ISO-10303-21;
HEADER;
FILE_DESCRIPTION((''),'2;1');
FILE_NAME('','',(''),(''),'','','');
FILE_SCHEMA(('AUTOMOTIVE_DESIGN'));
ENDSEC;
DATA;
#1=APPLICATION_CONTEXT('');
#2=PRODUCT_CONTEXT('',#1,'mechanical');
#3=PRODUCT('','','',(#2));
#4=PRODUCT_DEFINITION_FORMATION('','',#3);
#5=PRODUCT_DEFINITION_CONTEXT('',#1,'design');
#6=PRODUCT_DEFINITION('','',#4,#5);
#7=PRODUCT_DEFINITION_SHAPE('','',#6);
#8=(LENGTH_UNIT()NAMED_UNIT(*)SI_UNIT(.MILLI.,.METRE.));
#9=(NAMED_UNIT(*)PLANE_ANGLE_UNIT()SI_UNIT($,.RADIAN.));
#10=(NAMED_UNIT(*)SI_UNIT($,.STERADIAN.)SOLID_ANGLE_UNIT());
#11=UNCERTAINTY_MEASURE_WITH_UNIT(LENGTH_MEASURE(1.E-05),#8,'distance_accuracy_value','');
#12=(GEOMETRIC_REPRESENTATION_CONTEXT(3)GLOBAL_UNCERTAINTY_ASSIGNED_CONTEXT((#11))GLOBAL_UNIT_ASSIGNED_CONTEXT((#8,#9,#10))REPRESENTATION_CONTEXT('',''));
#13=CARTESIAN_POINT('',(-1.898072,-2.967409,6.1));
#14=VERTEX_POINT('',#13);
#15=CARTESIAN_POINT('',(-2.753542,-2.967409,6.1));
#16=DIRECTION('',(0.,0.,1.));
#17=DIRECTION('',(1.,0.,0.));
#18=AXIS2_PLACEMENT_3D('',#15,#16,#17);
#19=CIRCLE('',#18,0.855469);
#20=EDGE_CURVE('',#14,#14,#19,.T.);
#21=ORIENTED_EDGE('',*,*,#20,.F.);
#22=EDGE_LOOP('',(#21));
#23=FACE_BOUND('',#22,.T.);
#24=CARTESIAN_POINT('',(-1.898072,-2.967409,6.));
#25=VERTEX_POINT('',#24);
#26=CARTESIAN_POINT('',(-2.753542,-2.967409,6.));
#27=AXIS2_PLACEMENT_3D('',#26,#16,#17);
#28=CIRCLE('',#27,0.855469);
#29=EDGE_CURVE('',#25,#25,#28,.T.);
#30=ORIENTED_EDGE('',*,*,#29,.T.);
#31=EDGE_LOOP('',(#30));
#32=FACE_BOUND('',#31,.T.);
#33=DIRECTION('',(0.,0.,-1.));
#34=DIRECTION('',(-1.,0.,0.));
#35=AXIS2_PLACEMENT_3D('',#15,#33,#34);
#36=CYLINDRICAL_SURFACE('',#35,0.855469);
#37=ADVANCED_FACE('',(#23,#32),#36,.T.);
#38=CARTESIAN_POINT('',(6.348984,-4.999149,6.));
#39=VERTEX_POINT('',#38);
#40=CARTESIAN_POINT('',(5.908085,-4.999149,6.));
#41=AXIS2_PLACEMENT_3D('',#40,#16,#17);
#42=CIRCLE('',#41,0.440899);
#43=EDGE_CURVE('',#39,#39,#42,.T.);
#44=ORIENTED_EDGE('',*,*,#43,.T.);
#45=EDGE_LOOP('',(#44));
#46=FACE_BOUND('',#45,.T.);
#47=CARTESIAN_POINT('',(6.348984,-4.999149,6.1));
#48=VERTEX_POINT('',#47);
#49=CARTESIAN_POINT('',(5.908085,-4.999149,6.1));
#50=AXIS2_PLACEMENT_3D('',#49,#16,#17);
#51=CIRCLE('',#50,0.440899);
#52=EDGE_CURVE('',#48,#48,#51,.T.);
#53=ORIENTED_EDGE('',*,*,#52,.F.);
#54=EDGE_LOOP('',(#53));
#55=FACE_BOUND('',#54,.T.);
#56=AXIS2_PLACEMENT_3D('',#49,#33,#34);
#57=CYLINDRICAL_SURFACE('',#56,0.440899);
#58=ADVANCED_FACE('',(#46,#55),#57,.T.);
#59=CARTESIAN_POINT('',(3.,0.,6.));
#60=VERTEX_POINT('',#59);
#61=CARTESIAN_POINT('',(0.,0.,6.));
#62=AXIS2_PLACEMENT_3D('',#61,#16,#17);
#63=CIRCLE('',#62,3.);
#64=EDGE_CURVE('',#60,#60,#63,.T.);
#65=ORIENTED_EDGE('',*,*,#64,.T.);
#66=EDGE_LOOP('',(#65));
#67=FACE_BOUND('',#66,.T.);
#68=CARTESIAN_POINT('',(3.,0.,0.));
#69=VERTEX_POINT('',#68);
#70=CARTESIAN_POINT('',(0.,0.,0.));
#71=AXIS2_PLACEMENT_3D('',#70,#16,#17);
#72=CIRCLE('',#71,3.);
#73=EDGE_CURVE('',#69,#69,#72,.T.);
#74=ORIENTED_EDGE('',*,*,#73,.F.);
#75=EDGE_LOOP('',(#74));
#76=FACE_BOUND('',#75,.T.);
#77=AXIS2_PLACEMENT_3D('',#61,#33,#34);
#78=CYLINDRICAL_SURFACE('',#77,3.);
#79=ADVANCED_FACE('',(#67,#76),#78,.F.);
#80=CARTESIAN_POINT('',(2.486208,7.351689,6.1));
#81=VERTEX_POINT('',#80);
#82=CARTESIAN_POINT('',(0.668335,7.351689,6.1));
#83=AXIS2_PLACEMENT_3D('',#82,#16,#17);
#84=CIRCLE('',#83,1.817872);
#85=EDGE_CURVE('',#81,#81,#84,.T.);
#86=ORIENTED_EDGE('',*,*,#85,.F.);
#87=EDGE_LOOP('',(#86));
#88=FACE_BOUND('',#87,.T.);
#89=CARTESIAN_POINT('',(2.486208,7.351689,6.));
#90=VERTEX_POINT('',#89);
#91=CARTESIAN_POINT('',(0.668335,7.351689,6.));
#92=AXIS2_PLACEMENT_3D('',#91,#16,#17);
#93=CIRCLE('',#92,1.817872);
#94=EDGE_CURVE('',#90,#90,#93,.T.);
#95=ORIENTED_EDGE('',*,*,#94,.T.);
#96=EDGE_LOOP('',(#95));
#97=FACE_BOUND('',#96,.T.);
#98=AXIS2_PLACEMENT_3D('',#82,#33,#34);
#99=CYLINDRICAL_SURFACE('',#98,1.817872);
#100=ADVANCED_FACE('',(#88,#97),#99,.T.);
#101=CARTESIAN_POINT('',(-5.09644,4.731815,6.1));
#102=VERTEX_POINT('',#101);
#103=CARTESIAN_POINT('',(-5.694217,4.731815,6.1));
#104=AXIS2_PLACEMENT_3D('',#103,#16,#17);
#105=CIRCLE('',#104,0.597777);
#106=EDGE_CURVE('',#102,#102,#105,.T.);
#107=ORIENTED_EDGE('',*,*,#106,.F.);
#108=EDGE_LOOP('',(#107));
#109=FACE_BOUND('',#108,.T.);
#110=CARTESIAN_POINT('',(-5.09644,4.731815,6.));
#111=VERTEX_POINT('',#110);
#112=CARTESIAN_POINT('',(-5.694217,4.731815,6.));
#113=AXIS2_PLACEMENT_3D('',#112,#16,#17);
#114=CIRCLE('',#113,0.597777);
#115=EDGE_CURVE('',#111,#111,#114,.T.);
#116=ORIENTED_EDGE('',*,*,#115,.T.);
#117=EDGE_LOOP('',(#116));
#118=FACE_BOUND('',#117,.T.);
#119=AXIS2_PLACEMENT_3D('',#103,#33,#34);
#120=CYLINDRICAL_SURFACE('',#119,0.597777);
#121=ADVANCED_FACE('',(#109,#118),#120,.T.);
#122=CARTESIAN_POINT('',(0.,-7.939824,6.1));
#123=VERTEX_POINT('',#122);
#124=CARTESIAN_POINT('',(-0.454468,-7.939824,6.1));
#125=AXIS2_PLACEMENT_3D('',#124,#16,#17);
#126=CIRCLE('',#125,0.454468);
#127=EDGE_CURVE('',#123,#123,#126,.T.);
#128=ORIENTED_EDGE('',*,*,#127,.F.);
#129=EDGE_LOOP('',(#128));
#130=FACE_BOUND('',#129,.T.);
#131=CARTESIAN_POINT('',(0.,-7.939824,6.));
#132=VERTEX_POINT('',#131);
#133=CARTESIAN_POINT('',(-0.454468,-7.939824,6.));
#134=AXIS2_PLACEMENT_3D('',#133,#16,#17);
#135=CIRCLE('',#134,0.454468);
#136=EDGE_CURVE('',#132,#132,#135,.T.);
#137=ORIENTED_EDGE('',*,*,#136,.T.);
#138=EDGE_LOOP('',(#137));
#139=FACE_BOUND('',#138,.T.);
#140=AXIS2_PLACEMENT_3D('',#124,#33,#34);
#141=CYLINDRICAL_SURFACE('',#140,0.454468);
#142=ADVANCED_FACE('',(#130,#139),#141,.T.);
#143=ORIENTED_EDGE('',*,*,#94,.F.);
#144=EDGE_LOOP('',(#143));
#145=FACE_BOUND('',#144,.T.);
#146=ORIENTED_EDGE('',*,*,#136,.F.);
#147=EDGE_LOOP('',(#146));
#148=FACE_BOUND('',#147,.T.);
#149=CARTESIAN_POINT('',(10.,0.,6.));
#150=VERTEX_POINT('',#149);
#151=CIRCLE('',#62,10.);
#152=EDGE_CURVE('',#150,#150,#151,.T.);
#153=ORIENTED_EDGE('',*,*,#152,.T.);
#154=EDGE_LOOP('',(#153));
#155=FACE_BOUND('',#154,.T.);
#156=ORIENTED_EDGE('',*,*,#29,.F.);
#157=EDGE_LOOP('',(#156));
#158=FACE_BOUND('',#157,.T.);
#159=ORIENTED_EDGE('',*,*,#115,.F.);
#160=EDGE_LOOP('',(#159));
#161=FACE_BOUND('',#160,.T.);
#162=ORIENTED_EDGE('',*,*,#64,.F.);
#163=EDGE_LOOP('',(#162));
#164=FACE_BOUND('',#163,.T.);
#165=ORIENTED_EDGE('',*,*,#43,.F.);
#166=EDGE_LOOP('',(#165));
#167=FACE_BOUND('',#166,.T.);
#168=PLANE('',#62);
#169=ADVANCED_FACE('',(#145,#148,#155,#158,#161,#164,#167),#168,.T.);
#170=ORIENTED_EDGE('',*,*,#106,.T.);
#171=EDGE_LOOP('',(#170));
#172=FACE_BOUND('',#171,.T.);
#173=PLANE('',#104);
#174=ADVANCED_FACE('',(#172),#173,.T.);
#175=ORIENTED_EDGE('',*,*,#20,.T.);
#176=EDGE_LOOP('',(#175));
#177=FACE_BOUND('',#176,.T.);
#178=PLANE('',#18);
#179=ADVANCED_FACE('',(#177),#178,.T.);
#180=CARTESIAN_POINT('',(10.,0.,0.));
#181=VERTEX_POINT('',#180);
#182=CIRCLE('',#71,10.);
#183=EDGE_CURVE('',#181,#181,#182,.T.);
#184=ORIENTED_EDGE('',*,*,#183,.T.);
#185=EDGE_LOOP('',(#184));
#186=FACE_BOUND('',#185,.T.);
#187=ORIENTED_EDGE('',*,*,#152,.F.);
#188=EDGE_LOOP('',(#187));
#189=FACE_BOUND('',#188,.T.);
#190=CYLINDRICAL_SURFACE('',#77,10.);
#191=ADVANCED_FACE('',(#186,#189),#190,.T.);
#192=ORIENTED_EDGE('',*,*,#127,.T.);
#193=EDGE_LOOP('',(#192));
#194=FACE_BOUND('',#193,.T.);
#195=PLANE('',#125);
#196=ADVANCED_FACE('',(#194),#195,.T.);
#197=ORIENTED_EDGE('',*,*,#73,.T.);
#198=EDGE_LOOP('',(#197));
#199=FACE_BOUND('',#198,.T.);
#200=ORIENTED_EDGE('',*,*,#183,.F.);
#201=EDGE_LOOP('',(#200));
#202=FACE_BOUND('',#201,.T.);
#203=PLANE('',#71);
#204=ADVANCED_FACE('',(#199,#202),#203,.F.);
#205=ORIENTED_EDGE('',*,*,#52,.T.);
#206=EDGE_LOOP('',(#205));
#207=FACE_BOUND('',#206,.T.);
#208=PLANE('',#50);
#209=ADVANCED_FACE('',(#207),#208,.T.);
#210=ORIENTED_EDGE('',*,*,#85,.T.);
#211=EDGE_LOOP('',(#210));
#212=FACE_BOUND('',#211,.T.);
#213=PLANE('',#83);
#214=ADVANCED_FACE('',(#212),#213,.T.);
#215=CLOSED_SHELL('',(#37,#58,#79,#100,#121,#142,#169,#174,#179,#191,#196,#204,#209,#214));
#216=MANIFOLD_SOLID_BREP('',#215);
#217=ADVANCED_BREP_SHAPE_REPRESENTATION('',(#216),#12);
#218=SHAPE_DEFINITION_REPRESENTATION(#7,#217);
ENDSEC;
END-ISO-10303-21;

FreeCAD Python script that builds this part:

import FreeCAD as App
import Part
import Sketcher

V = App.Vector

doc = App.newDocument("Part")
body = doc.addObject("PartDesign::Body", "Body")

# Sketch on XY plane
sketch1 = doc.addObject("Sketcher::SketchObject", "Sketch")
body.addObject(sketch1)
sketch1.AttachmentSupport = (doc.XY_Plane, [""])
sketch1.MapMode = "FlatFace"
sketch1.addGeometry([
    Part.Circle(V(0, 0, 0), V(0, 0, 1), 10),
    Part.Circle(V(0, 0, 0), V(0, 0, 1), 3),
], False)
sketch1.addConstraint([
    Sketcher.Constraint("Coincident", 0, 3, -1, 1),
    Sketcher.Constraint("Coincident", 1, 3, -1, 1),
    Sketcher.Constraint("Diameter", 0, 20.0),
    Sketcher.Constraint("Diameter", 1, 6.0),
])
pad1 = doc.addObject("PartDesign::Pad", "Pad")
body.addObject(pad1)
pad1.Profile = sketch1
pad1.Length = 6

# Sketch on XY plane
sketch2 = doc.addObject("Sketcher::SketchObject", "Sketch001")
body.addObject(sketch2)
sketch2.AttachmentSupport = (doc.XY_Plane, [""])
sketch2.MapMode = "FlatFace"
sketch2.AttachmentOffset = App.Placement(V(0, 0, 6), App.Rotation())
sketch2.addGeometry([
    Part.Circle(V(-5.69, 4.73, 0), V(0, 0, 1), 0.6),  # 0
    Part.Circle(V(0.67, 7.35, 0), V(0, 0, 1), 1.82),  # 1
    Part.Circle(V(5.91, -5, 0), V(0, 0, 1), 0.44),  # 2
    Part.Circle(V(-2.75, -2.97, 0), V(0, 0, 1), 0.86),  # 3
    Part.Circle(V(-0.45, -7.94, 0), V(0, 0, 1), 0.45),  # 4
], False)
sketch2.addConstraint([
    Sketcher.Constraint("Diameter", 3, 1.710939),
    Sketcher.Constraint("Diameter", 0, 1.195555),
    Sketcher.Constraint("Diameter", 1, 3.635744),
    Sketcher.Constraint("Diameter", 2, 0.881798),
    Sketcher.Constraint("Diameter", 4, 0.908936),
    Sketcher.Constraint("DistanceY", 3, 3, 1, 3, 10.319098),
    Sketcher.Constraint("DistanceY", -1, 1, 1, 3, 7.351689),
    Sketcher.Constraint("DistanceY", 2, 3, -1, 1, 4.999149),
    Sketcher.Constraint("DistanceX", 3, 3, -1, 1, 2.753542),
    Sketcher.Constraint("DistanceX", 4, 3, -1, 1, 0.454468),
    Sketcher.Constraint("DistanceX", 1, 3, 2, 3, 5.239749),
    Sketcher.Constraint("DistanceX", 0, 3, 4, 3, 5.239749),
    Sketcher.Constraint("DistanceY", 4, 3, 0, 3, 12.671639),
    Sketcher.Constraint("DistanceY", -1, 1, 0, 3, 4.731815),
    Sketcher.Constraint("DistanceX", -1, 1, 1, 3, 0.668335),
])
pad2 = doc.addObject("PartDesign::Pad", "Pad001")
body.addObject(pad2)
pad2.Profile = sketch2
pad2.Length = 0.1

doc.recompute()
